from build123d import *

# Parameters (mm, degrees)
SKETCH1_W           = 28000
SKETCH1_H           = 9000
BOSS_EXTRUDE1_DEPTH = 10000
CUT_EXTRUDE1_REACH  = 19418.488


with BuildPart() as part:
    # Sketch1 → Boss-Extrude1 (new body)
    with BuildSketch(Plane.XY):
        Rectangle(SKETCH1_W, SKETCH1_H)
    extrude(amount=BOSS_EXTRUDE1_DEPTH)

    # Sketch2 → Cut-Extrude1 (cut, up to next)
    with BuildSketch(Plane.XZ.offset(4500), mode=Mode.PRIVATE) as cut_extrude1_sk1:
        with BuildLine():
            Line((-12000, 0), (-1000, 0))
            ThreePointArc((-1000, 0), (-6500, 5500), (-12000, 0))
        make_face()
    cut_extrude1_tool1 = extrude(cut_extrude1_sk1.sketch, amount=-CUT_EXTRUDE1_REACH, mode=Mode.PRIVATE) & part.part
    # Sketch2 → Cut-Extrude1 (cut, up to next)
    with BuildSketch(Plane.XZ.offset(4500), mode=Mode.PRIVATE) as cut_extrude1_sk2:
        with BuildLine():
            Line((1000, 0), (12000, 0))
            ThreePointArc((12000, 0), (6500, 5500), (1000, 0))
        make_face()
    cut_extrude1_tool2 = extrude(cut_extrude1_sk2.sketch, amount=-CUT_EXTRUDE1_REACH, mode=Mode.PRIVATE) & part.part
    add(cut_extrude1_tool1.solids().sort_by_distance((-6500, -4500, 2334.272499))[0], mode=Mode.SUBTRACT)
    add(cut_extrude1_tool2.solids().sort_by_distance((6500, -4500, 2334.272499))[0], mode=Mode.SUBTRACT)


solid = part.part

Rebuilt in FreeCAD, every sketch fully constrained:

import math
import FreeCAD as App
import Part
import Sketcher
Q = App.Units.Quantity

doc = App.newDocument("Part")
params = doc.addObject("Spreadsheet::Sheet", "Params")
for row, (alias, value) in enumerate([
    ("sketch1_width", "28000 mm"),
    ("sketch1_height", "9000 mm"),
    ("pad1_length", "10000 mm"),
    ("sketch2_radius", "5500 mm"),
    ("sketch3_radius", "5500 mm"),
], start=1):
    params.set(f"A{row}", alias)
    params.set(f"B{row}", "=" + value)
    params.setAlias(f"B{row}", alias)

body = doc.addObject("PartDesign::Body", "Body")

# Sketch on XY plane
sketch1 = body.newObject("Sketcher::SketchObject", "Sketch")
sketch1.AttachmentSupport = (doc.getObject("XY_Plane"), [""])
sketch1.MapMode = "FlatFace"
sketch1.addGeometry([
    Part.LineSegment(App.Vector(-14000, 4500, 0), App.Vector(-14000, -4500, 0)),
    Part.LineSegment(App.Vector(-14000, -4500, 0), App.Vector(14000, -4500, 0)),
    Part.LineSegment(App.Vector(14000, -4500, 0), App.Vector(14000, 4500, 0)),
    Part.LineSegment(App.Vector(14000, 4500, 0), App.Vector(-14000, 4500, 0)),
], False)
sketch1.addConstraint([
    Sketcher.Constraint("Coincident", 0, 2, 1, 1),
    Sketcher.Constraint("Coincident", 1, 2, 2, 1),
    Sketcher.Constraint("Coincident", 2, 2, 3, 1),
    Sketcher.Constraint("Coincident", 3, 2, 0, 1),
    Sketcher.Constraint("Vertical", 0),
    Sketcher.Constraint("Horizontal", 1),
    Sketcher.Constraint("Vertical", 2),
    Sketcher.Constraint("Horizontal", 3),
    Sketcher.Constraint("Symmetric", 0, 2, 2, 2, -1, 1),
    Sketcher.Constraint("DistanceX", 1, 1, 1, 2, Q("28000 mm")),
    Sketcher.Constraint("DistanceY", 0, 2, 0, 1, Q("9000 mm")),
])
sketch1.setExpression("Constraints[9]", "Params.sketch1_width")
sketch1.setExpression("Constraints[10]", "Params.sketch1_height")
pad1 = body.newObject("PartDesign::Pad", "Pad")
pad1.Profile = sketch1
pad1.setExpression("Length", "Params.pad1_length")

# Sketch on XZ plane
sketch2 = body.newObject("Sketcher::SketchObject", "Sketch001")
sketch2.AttachmentSupport = (doc.getObject("XZ_Plane"), [""])
sketch2.MapMode = "FlatFace"
sketch2.AttachmentOffset = App.Placement(App.Vector(0, 0, 4500), App.Rotation())
sketch2.addGeometry([
    Part.LineSegment(App.Vector(-12000, 0, 0), App.Vector(-1000, 0, 0)),
    Part.ArcOfCircle(Part.Circle(App.Vector(-6500, 0, 0), App.Vector(0, 0, 1), 5500), math.radians(0), math.radians(180)),
], False)
sketch2.addConstraint([
    Sketcher.Constraint("Coincident", 0, 1, 1, 2),
    Sketcher.Constraint("Coincident", 1, 1, 0, 2),
    Sketcher.Constraint("Horizontal", 0),
    Sketcher.Constraint("PointOnObject", 1, 3, -1),
    Sketcher.Constraint("PointOnObject", 0, 1, -1),
    Sketcher.Constraint("Radius", 1, Q("5500 mm")),
    Sketcher.Constraint("DistanceX", 1, 3, -1, 1, Q("6500 mm")),
])
sketch2.setExpression("Constraints[5]", "Params.sketch2_radius")
pocket1 = body.newObject("PartDesign::Pocket", "Pocket")
pocket1.Profile = sketch2
pocket1.Type = "UpToFirst"

# Sketch on XZ plane
sketch3 = body.newObject("Sketcher::SketchObject", "Sketch002")
sketch3.AttachmentSupport = (doc.getObject("XZ_Plane"), [""])
sketch3.MapMode = "FlatFace"
sketch3.AttachmentOffset = App.Placement(App.Vector(0, 0, 4500), App.Rotation())
sketch3.addGeometry([
    Part.LineSegment(App.Vector(1000, 0, 0), App.Vector(12000, 0, 0)),
    Part.ArcOfCircle(Part.Circle(App.Vector(6500, 0, 0), App.Vector(0, 0, 1), 5500), math.radians(0), math.radians(180)),
], False)
sketch3.addConstraint([
    Sketcher.Constraint("Coincident", 0, 1, 1, 2),
    Sketcher.Constraint("Coincident", 1, 1, 0, 2),
    Sketcher.Constraint("Horizontal", 0),
    Sketcher.Constraint("PointOnObject", 1, 3, -1),
    Sketcher.Constraint("PointOnObject", 0, 1, -1),
    Sketcher.Constraint("Radius", 1, Q("5500 mm")),
    Sketcher.Constraint("DistanceX", -1, 1, 1, 3, Q("6500 mm")),
])
sketch3.setExpression("Constraints[5]", "Params.sketch3_radius")
pocket2 = body.newObject("PartDesign::Pocket", "Pocket001")
pocket2.Profile = sketch3
pocket2.Type = "UpToFirst"

doc.recompute()
